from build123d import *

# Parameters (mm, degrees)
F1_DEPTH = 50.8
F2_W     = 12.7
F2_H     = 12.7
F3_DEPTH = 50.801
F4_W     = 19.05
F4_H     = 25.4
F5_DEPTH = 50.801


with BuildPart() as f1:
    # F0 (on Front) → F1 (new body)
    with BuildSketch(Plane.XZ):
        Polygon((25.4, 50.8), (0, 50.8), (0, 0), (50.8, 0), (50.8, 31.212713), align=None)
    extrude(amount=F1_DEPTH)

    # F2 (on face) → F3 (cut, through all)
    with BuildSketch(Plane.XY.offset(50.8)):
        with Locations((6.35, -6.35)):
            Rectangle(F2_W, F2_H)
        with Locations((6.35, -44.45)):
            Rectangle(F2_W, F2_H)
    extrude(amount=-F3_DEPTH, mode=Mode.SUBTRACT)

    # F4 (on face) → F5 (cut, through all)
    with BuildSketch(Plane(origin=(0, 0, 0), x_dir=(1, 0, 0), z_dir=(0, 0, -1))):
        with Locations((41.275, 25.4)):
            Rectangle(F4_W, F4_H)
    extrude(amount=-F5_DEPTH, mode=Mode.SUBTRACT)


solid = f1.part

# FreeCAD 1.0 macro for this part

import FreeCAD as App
import Part
import Sketcher

V = App.Vector
Q = App.Units.Quantity


def add_polygon(sketch, points):
    """Adds a closed chain of lines whose ends are joined by coincident constraints."""
    first, n = sketch.GeometryCount, len(points)
    for a, b in zip(points, points[1:] + points[:1]):
        sketch.addGeometry(Part.LineSegment(App.Vector(*a, 0), App.Vector(*b, 0)), False)
    for i in range(n):
        sketch.addConstraint(Sketcher.Constraint("Coincident", first + i, 2, first + (i + 1) % n, 1))

doc = App.newDocument("Part")
params = doc.addObject("Spreadsheet::Sheet", "Params")
for row, (alias, value) in enumerate([
    ("sketch1_width", "1 in"),
    ("sketch1_width2", "2 in"),
    ("pad1_length", "2 in"),
    ("sketch2_width", "0.5 in"),
    ("sketch3_height", "1 in"),
    ("sketch3_width", "0.75 in"),
], start=1):
    params.set(f"A{row}", alias)
    params.set(f"B{row}", "=" + value)
    params.setAlias(f"B{row}", alias)

body = doc.addObject("PartDesign::Body", "Body")

# Sketch on XZ plane
sketch1 = body.newObject("Sketcher::SketchObject", "Sketch")
sketch1.AttachmentSupport = (doc.getObject("XZ_Plane"), [""])
sketch1.MapMode = "FlatFace"
add_polygon(sketch1, [(25, 51), (0, 51), (0, 0), (51, 0), (51, 31)])  # lines 0-4
sketch1.addConstraint(Sketcher.Constraint("Horizontal", 0))
sketch1.addConstraint(Sketcher.Constraint("Vertical", 1))
sketch1.addConstraint(Sketcher.Constraint("Horizontal", 2))
sketch1.addConstraint(Sketcher.Constraint("Vertical", 3))
sketch1.addConstraint(Sketcher.Constraint("Coincident", 1, 2, -1, 1))
sketch1.addConstraint(Sketcher.Constraint("Equal", 2, 1))
sketch1.addConstraint(Sketcher.Constraint("DistanceX", 0, 2, 0, 1, Q("1 in")))
sketch1.addConstraint(Sketcher.Constraint("DistanceX", 2, 1, 2, 2, Q("2 in")))
sketch1.addConstraint(Sketcher.Constraint("DistanceY", 3, 1, 3, 2, Q("31.212713 mm")))
sketch1.setExpression("Constraints[11]", "Params.sketch1_width")
sketch1.setExpression("Constraints[12]", "Params.sketch1_width2")
pad1 = body.newObject("PartDesign::Pad", "Pad")
pad1.Profile = sketch1
pad1.setExpression("Length", "Params.pad1_length")

# Sketch on XY plane
sketch2 = body.newObject("Sketcher::SketchObject", "Sketch001")
sketch2.AttachmentSupport = (doc.getObject("XY_Plane"), [""])
sketch2.MapMode = "FlatFace"
sketch2.AttachmentOffset = App.Placement(V(0, 0, 2 * 25.4), App.Rotation())
add_polygon(sketch2, [(0, 0), (0, -13), (13, -13), (13, 0)])  # lines 0-3
add_polygon(sketch2, [(0, -38), (0, -51), (13, -51), (13, -38)])  # lines 4-7
sketch2.addConstraint(Sketcher.Constraint("Vertical", 0))
sketch2.addConstraint(Sketcher.Constraint("Horizontal", 1))
sketch2.addConstraint(Sketcher.Constraint("Vertical", 2))
sketch2.addConstraint(Sketcher.Constraint("Horizontal", 3))
sketch2.addConstraint(Sketcher.Constraint("Vertical", 4))
sketch2.addConstraint(Sketcher.Constraint("Horizontal", 5))
sketch2.addConstraint(Sketcher.Constraint("Vertical", 6))
sketch2.addConstraint(Sketcher.Constraint("Horizontal", 7))
sketch2.addConstraint(Sketcher.Constraint("Coincident", 3, 2, -1, 1))
sketch2.addConstraint(Sketcher.Constraint("PointOnObject", 4, 2, -2))
sketch2.addConstraint(Sketcher.Constraint("Vertical", 2, 2, 5, 2))
sketch2.addConstraint(Sketcher.Constraint("Equal", 7, 0))
sketch2.addConstraint(Sketcher.Constraint("Equal", 2, 4))
sketch2.addConstraint(Sketcher.Constraint("DistanceX", 1, 1, 1, 2, Q("0.5 in")))
sketch2.addConstraint(Sketcher.Constraint("DistanceY", 4, 2, -1, 1, Q("2 in")))
sketch2.setExpression("Constraints[21]", "Params.sketch2_width")
pocket1 = body.newObject("PartDesign::Pocket", "Pocket")
pocket1.Profile = sketch2
pocket1.Type = "ThroughAll"

# Sketch on XY plane
sketch3 = body.newObject("Sketcher::SketchObject", "Sketch002")
sketch3.AttachmentSupport = (doc.getObject("XY_Plane"), [""])
sketch3.MapMode = "FlatFace"
add_polygon(sketch3, [(32, -38), (32, -13), (51, -13), (51, -38)])  # lines 0-3
sketch3.addConstraint(Sketcher.Constraint("Vertical", 0))
sketch3.addConstraint(Sketcher.Constraint("Horizontal", 1))
sketch3.addConstraint(Sketcher.Constraint("Vertical", 2))
sketch3.addConstraint(Sketcher.Constraint("Horizontal", 3))
sketch3.addConstraint(Sketcher.Constraint("DistanceY", 0, 1, 0, 2, Q("1 in")))
sketch3.addConstraint(Sketcher.Constraint("DistanceX", -1, 1, 1, 2, Q("2 in")))
sketch3.addConstraint(Sketcher.Constraint("DistanceX", 1, 1, 1, 2, Q("0.75 in")))
sketch3.addConstraint(Sketcher.Constraint("DistanceY", 0, 2, -1, 1, Q("0.5 in")))
sketch3.setExpression("Constraints[8]", "Params.sketch3_height")
sketch3.setExpression("Constraints[10]", "Params.sketch3_width")
pocket2 = body.newObject("PartDesign::Pocket", "Pocket001")
pocket2.Profile = sketch3
pocket2.Type = "ThroughAll"
pocket2.Reversed = True

doc.recompute()
